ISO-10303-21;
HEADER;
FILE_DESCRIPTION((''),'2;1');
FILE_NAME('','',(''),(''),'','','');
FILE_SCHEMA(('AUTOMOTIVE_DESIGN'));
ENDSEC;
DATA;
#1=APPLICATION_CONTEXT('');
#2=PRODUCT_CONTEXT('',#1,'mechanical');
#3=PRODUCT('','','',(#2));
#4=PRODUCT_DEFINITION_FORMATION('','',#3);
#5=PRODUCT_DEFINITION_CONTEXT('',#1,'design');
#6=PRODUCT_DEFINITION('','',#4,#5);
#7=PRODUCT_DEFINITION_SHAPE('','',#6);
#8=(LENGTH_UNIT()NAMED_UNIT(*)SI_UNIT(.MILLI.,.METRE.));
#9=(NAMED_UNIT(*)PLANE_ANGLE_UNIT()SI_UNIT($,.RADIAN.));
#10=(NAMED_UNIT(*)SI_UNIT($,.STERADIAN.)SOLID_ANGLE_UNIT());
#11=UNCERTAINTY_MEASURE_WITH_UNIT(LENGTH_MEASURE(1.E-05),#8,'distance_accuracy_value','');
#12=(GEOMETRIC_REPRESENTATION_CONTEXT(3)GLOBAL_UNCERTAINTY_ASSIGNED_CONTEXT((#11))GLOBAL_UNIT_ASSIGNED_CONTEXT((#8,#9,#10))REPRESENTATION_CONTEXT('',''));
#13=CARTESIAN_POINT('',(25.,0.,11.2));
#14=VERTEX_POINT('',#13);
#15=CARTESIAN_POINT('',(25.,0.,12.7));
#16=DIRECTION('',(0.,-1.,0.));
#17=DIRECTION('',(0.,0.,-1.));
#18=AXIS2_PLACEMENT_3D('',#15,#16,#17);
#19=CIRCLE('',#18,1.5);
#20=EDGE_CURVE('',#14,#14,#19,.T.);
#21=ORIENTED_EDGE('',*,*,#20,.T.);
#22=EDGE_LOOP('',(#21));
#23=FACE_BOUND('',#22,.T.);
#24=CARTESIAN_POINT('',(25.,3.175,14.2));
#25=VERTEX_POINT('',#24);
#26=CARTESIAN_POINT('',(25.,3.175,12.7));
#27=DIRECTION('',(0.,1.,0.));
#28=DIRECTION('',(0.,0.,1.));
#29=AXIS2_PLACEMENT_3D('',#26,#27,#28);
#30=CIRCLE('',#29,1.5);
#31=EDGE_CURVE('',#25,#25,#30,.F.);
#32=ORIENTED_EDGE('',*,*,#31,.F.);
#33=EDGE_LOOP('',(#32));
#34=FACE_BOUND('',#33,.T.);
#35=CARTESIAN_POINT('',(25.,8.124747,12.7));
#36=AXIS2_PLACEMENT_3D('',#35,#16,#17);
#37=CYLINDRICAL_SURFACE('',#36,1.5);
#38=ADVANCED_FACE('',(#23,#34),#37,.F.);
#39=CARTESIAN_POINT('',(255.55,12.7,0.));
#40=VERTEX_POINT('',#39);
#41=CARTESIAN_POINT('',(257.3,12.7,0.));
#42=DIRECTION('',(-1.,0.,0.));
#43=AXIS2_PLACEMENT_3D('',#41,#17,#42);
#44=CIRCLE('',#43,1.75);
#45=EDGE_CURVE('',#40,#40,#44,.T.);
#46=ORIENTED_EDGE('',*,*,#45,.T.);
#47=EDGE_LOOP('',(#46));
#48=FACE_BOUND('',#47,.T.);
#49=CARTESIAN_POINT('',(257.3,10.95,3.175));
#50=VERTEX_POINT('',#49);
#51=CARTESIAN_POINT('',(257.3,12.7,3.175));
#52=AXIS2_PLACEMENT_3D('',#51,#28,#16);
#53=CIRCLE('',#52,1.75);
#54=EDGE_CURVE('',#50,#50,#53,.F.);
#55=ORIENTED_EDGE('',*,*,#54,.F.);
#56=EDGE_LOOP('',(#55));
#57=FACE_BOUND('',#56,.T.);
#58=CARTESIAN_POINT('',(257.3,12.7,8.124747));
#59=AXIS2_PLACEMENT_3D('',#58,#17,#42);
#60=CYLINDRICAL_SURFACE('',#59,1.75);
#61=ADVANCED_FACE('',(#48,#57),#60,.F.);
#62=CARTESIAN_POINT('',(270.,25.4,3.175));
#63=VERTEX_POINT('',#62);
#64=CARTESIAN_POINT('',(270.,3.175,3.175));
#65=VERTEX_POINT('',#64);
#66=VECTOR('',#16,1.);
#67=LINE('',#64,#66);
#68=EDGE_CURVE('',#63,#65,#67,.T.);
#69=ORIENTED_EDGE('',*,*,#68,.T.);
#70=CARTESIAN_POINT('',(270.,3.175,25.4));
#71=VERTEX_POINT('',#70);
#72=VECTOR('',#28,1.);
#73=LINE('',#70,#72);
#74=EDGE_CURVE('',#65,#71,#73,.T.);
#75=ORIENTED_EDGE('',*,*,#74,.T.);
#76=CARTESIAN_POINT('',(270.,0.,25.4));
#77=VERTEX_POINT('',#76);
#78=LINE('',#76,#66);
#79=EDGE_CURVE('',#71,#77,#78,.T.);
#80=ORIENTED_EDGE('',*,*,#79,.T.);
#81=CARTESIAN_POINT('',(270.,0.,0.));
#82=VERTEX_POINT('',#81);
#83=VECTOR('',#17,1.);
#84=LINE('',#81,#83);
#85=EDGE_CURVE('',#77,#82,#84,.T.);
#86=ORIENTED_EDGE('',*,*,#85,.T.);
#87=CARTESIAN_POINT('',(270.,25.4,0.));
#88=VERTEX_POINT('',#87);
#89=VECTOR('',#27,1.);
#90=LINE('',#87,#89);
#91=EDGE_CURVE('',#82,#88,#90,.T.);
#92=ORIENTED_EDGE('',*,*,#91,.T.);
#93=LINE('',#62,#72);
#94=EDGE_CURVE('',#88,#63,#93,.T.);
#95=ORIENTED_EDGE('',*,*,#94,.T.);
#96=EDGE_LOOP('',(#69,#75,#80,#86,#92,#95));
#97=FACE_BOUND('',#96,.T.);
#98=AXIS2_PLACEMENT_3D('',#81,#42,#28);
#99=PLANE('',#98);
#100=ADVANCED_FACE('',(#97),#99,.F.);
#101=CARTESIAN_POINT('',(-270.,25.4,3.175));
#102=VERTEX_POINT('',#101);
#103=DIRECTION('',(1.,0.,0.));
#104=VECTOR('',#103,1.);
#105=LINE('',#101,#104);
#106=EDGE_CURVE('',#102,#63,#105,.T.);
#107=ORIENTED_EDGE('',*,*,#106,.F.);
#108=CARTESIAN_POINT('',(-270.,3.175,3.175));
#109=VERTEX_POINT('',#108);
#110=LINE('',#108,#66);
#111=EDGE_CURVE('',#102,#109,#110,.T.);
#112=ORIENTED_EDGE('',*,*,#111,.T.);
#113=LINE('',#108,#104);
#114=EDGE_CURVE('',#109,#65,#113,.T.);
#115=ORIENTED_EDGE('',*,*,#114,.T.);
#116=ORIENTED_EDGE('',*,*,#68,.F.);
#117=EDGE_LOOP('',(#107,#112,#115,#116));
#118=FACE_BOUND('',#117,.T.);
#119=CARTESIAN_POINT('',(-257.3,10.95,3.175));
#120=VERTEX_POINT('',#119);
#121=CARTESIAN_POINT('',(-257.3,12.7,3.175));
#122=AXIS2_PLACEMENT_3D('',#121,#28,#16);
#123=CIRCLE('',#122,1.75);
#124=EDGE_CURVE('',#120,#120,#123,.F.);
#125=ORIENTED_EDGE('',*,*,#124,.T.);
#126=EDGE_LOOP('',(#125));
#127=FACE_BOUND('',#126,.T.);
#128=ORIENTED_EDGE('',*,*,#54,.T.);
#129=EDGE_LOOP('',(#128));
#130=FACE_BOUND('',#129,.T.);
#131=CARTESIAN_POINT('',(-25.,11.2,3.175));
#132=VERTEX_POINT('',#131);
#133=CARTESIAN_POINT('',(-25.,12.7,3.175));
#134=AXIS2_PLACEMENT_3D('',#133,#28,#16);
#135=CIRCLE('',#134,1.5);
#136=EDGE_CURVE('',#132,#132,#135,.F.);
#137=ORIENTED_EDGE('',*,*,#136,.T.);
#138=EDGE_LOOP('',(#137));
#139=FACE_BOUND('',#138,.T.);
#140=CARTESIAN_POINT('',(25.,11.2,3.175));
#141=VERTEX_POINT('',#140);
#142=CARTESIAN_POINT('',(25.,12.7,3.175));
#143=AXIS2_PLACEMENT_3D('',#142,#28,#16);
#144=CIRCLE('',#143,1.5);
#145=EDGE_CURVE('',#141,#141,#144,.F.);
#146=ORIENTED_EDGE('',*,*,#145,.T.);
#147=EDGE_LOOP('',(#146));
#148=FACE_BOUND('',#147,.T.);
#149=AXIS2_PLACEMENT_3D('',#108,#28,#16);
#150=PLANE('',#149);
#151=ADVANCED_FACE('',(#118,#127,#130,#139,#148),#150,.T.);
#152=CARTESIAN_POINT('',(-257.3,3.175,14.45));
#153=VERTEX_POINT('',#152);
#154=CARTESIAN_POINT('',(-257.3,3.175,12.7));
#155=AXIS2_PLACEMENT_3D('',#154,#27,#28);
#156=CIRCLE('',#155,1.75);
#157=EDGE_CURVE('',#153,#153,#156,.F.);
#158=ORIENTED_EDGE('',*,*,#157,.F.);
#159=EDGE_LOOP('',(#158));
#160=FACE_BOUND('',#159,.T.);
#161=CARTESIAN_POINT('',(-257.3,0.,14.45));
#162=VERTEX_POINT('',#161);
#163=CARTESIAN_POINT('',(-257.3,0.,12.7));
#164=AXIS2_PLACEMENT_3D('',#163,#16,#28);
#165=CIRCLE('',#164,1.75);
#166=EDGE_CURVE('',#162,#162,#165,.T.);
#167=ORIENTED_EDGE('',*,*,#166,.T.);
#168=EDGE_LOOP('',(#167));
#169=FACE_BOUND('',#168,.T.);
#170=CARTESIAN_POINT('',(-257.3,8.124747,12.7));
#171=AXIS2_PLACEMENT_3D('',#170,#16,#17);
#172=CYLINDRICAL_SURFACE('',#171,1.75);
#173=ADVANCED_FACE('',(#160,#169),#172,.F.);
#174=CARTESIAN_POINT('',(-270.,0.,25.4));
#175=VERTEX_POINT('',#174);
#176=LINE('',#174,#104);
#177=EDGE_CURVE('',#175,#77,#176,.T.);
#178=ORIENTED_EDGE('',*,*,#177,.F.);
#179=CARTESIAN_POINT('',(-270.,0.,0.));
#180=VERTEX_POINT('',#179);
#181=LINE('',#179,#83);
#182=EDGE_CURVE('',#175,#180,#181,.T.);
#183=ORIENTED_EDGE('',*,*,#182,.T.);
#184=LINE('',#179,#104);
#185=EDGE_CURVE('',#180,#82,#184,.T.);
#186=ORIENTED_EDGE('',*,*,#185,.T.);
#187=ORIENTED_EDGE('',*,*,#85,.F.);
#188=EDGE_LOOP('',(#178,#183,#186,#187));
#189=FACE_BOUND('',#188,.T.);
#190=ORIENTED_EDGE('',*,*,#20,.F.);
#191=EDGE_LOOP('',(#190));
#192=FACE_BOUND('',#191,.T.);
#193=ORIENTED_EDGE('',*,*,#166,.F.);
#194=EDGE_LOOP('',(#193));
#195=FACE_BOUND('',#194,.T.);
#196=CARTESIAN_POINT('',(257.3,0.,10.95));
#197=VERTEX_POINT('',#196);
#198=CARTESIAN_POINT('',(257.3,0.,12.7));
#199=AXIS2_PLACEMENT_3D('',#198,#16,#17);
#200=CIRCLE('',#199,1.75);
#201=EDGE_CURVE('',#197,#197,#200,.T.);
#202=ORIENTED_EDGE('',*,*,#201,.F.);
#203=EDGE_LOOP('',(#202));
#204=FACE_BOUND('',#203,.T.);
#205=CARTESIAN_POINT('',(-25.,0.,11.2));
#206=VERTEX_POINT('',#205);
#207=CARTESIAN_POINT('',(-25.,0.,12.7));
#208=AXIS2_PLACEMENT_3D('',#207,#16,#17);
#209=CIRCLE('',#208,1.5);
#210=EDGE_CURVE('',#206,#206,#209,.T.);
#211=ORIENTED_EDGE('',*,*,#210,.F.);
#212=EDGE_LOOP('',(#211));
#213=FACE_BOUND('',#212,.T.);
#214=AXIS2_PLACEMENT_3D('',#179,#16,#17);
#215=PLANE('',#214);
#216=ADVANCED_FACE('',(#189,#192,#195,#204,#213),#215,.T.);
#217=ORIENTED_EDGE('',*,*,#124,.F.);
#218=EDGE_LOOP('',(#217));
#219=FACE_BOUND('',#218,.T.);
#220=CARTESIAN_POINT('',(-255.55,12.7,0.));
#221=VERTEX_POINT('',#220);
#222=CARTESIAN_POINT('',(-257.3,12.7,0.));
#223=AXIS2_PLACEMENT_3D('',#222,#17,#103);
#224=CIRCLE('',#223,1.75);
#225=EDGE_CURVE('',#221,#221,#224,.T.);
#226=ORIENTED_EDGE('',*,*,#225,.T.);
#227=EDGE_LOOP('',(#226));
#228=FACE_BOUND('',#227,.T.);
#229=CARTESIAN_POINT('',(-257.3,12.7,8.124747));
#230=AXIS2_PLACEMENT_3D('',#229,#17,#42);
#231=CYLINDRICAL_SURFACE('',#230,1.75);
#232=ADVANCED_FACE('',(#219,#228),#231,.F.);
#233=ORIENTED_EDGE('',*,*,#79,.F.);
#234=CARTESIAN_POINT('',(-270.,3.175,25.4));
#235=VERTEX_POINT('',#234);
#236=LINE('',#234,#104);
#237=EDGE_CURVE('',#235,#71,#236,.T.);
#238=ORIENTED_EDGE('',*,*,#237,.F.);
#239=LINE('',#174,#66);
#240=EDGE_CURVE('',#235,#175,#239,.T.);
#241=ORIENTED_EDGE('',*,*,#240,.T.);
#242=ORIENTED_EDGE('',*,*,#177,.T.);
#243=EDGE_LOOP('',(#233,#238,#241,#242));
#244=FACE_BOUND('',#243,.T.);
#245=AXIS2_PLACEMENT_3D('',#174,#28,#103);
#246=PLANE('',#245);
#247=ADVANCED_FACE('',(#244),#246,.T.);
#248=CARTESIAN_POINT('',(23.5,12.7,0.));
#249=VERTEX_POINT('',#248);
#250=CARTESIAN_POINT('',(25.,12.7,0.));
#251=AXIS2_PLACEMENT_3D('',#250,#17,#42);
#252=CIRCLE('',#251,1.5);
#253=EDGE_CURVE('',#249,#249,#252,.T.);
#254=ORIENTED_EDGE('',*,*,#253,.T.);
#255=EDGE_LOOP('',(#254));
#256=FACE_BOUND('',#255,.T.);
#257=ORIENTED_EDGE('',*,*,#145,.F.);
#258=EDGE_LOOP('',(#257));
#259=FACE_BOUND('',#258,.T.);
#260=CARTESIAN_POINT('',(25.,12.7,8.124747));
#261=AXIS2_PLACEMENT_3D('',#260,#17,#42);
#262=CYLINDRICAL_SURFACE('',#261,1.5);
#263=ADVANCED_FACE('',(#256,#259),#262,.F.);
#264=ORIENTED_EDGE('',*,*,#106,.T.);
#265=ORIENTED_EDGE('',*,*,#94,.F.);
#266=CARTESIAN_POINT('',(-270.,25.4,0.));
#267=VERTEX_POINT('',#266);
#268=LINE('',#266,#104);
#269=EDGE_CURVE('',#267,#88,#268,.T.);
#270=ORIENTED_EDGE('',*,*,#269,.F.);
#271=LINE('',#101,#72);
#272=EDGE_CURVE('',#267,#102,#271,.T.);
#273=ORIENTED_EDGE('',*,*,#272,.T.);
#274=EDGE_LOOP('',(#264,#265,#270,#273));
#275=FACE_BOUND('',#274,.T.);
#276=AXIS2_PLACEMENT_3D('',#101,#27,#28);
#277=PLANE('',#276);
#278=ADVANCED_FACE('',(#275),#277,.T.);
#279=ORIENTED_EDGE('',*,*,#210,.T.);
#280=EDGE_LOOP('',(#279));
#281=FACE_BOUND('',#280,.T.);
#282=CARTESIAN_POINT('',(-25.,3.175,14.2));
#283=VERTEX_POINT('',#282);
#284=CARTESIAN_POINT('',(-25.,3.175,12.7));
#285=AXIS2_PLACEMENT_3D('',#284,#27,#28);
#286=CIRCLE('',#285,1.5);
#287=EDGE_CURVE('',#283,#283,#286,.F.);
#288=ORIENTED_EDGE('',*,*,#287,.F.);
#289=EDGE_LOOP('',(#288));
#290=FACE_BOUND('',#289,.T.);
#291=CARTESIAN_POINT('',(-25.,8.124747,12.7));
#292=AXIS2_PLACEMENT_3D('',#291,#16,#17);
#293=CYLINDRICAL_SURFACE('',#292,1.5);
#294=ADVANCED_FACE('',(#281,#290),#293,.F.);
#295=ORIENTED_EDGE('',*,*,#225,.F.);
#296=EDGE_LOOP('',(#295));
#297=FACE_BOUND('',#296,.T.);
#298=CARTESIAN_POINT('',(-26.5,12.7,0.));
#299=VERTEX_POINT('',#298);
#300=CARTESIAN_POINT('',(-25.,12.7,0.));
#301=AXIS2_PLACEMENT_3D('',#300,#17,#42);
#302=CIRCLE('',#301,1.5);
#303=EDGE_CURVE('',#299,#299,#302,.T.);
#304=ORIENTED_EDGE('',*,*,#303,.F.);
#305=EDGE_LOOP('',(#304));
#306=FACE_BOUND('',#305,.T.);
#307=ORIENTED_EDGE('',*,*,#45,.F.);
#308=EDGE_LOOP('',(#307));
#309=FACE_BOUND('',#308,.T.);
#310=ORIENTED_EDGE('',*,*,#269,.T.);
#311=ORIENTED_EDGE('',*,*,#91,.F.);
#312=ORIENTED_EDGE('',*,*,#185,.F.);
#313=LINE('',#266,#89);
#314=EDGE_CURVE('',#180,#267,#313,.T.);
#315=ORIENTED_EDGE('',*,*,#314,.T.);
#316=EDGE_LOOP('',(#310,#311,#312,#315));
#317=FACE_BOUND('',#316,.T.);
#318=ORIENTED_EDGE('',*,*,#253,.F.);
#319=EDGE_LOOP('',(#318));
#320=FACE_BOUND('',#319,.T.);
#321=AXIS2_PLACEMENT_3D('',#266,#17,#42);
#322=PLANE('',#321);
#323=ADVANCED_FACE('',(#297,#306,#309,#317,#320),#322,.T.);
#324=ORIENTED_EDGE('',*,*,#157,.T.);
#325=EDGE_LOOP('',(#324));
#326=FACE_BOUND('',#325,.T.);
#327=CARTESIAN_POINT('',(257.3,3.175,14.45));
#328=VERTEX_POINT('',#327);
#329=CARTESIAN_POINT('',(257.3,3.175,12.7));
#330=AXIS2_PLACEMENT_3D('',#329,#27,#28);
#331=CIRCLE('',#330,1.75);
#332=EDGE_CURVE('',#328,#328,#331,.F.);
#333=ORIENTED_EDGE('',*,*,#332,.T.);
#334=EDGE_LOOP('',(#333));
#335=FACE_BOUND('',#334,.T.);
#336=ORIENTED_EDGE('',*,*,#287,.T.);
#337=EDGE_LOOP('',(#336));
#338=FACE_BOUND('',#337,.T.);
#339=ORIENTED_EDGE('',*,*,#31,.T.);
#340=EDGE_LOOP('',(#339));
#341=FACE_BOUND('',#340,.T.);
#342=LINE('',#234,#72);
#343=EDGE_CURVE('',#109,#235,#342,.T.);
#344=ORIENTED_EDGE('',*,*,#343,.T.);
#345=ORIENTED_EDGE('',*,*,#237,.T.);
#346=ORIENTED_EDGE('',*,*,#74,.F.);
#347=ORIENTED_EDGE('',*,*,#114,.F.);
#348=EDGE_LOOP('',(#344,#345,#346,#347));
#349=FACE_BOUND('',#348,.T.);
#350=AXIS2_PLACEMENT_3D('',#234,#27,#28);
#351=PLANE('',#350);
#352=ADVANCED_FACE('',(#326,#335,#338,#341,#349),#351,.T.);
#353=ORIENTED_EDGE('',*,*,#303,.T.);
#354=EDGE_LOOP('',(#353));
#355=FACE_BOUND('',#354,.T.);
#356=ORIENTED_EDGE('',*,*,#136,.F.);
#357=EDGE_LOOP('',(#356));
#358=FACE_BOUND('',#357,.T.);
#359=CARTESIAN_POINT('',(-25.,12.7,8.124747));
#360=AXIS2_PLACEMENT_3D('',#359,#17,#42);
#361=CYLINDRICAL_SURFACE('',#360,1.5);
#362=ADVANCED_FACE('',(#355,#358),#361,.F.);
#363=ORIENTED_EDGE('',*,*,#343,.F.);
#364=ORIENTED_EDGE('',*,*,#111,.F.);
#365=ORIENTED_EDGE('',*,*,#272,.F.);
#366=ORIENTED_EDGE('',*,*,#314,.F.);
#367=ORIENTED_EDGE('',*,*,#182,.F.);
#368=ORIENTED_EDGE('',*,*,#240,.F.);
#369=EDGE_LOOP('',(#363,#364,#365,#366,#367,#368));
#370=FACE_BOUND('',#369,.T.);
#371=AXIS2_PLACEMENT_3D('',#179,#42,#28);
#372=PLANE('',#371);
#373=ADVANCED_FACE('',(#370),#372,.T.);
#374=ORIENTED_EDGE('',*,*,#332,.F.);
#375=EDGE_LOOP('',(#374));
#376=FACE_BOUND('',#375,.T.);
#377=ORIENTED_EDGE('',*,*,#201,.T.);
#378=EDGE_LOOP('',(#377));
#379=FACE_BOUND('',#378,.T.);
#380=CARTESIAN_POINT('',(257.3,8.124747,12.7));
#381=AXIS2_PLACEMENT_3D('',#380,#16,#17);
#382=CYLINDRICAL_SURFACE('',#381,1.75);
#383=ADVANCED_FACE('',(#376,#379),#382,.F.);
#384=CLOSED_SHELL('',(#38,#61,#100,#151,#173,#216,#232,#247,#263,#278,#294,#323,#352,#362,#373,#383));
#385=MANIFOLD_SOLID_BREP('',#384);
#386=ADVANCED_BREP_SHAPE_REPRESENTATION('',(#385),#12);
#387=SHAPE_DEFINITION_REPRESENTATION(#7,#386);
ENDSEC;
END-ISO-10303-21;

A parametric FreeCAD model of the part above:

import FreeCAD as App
import Part
import Sketcher

V = App.Vector

doc = App.newDocument("Part")
body = doc.addObject("PartDesign::Body", "Body")

# Sketch on YZ plane
sketch1 = doc.addObject("Sketcher::SketchObject", "Sketch")
body.addObject(sketch1)
sketch1.AttachmentSupport = (doc.YZ_Plane, [""])
sketch1.MapMode = "FlatFace"
sketch1.addGeometry([
    Part.LineSegment(V(0, 0, 0), V(25.4, 0, 0)),  # 0
    Part.LineSegment(V(25.4, 0, 0), V(25.4, 3.2, 0)),  # 1
    Part.LineSegment(V(25.4, 3.2, 0), V(3.2, 3.2, 0)),  # 2
    Part.LineSegment(V(3.2, 3.2, 0), V(3.2, 25.4, 0)),  # 3
    Part.LineSegment(V(3.2, 25.4, 0), V(0, 25.4, 0)),  # 4
    Part.LineSegment(V(0, 25.4, 0), V(0, 0, 0)),  # 5
], False)
sketch1.addConstraint([
    Sketcher.Constraint("Coincident", 0, 2, 1, 1),
    Sketcher.Constraint("Coincident", 1, 2, 2, 1),
    Sketcher.Constraint("Coincident", 2, 2, 3, 1),
    Sketcher.Constraint("Coincident", 3, 2, 4, 1),
    Sketcher.Constraint("Coincident", 4, 2, 5, 1),
    Sketcher.Constraint("Coincident", 5, 2, 0, 1),
    Sketcher.Constraint("Horizontal", 0),
    Sketcher.Constraint("Vertical", 1),
    Sketcher.Constraint("Horizontal", 2),
    Sketcher.Constraint("Vertical", 3),
    Sketcher.Constraint("Horizontal", 4),
    Sketcher.Constraint("Vertical", 5),
    Sketcher.Constraint("Coincident", 5, 2, -1, 1),
    Sketcher.Constraint("Equal", 4, 1),
    Sketcher.Constraint("Equal", 2, 3),
    Sketcher.Constraint("DistanceX", 0, 1, 0, 2, 25.4),
    Sketcher.Constraint("DistanceX", 2, 2, 2, 1, 22.225),
])
pad1 = doc.addObject("PartDesign::Pad", "Pad")
body.addObject(pad1)
pad1.Profile = sketch1
pad1.Type = "TwoLengths"
pad1.Length = 270
pad1.Length2 = 270

# Sketch on XZ plane
sketch2 = doc.addObject("Sketcher::SketchObject", "Sketch001")
body.addObject(sketch2)
sketch2.AttachmentSupport = (doc.XZ_Plane, [""])
sketch2.MapMode = "FlatFace"
sketch2.addGeometry([
    Part.Circle(V(25, 12.7, 0), V(0, 0, 1), 1.5),
    Part.Circle(V(-25, 12.7, 0), V(0, 0, 1), 1.5),
    Part.Circle(V(257.3, 12.7, 0), V(0, 0, 1), 1.8),
    Part.Circle(V(-257.3, 12.7, 0), V(0, 0, 1), 1.8),
], False)
sketch2.addConstraint([
    Sketcher.Constraint("Equal", 0, 1),
    Sketcher.Constraint("Equal", 2, 3),
    Sketcher.Constraint("Symmetric", 0, 3, 1, 3, -2),
    Sketcher.Constraint("Symmetric", 2, 3, 3, 3, -2),
    Sketcher.Constraint("Horizontal", 1, 3, 2, 3),
    Sketcher.Constraint("Diameter", 0, 3.0),
    Sketcher.Constraint("Diameter", 2, 3.5),
    Sketcher.Constraint("DistanceX", -1, 1, 0, 3, 25.0),
    Sketcher.Constraint("DistanceY", -1, 1, 0, 3, 12.7),
    Sketcher.Constraint("DistanceX", -1, 1, 2, 3, 257.3),
])
pocket1 = doc.addObject("PartDesign::Pocket", "Pocket")
body.addObject(pocket1)
pocket1.Profile = sketch2
pocket1.Length = 3.175

# Sketch on XY plane
sketch3 = doc.addObject("Sketcher::SketchObject", "Sketch002")
body.addObject(sketch3)
sketch3.AttachmentSupport = (doc.XY_Plane, [""])
sketch3.MapMode = "FlatFace"
sketch3.addGeometry([
    Part.Circle(V(-25, 12.7, 0), V(0, 0, 1), 1.5),
    Part.Circle(V(25, 12.7, 0), V(0, 0, 1), 1.5),
    Part.Circle(V(257.3, 12.7, 0), V(0, 0, 1), 1.8),
    Part.Circle(V(-257.3, 12.7, 0), V(0, 0, 1), 1.8),
], False)
sketch3.addConstraint([
    Sketcher.Constraint("Equal", 0, 1),
    Sketcher.Constraint("Equal", 2, 3),
    Sketcher.Constraint("Symmetric", 0, 3, 1, 3, -2),
    Sketcher.Constraint("Symmetric", 2, 3, 3, 3, -2),
    Sketcher.Constraint("Horizontal", 1, 3, 2, 3),
    Sketcher.Constraint("Diameter", 0, 3.0),
    Sketcher.Constraint("Diameter", 2, 3.5),
    Sketcher.Constraint("DistanceX", 0, 3, -1, 1, 25.0),
    Sketcher.Constraint("DistanceY", -1, 1, 0, 3, 12.7),
    Sketcher.Constraint("DistanceX", -1, 1, 2, 3, 257.3),
])
pocket2 = doc.addObject("PartDesign::Pocket", "Pocket001")
body.addObject(pocket2)
pocket2.Profile = sketch3
pocket2.Length = 3.175
pocket2.Reversed = True

doc.recompute()
